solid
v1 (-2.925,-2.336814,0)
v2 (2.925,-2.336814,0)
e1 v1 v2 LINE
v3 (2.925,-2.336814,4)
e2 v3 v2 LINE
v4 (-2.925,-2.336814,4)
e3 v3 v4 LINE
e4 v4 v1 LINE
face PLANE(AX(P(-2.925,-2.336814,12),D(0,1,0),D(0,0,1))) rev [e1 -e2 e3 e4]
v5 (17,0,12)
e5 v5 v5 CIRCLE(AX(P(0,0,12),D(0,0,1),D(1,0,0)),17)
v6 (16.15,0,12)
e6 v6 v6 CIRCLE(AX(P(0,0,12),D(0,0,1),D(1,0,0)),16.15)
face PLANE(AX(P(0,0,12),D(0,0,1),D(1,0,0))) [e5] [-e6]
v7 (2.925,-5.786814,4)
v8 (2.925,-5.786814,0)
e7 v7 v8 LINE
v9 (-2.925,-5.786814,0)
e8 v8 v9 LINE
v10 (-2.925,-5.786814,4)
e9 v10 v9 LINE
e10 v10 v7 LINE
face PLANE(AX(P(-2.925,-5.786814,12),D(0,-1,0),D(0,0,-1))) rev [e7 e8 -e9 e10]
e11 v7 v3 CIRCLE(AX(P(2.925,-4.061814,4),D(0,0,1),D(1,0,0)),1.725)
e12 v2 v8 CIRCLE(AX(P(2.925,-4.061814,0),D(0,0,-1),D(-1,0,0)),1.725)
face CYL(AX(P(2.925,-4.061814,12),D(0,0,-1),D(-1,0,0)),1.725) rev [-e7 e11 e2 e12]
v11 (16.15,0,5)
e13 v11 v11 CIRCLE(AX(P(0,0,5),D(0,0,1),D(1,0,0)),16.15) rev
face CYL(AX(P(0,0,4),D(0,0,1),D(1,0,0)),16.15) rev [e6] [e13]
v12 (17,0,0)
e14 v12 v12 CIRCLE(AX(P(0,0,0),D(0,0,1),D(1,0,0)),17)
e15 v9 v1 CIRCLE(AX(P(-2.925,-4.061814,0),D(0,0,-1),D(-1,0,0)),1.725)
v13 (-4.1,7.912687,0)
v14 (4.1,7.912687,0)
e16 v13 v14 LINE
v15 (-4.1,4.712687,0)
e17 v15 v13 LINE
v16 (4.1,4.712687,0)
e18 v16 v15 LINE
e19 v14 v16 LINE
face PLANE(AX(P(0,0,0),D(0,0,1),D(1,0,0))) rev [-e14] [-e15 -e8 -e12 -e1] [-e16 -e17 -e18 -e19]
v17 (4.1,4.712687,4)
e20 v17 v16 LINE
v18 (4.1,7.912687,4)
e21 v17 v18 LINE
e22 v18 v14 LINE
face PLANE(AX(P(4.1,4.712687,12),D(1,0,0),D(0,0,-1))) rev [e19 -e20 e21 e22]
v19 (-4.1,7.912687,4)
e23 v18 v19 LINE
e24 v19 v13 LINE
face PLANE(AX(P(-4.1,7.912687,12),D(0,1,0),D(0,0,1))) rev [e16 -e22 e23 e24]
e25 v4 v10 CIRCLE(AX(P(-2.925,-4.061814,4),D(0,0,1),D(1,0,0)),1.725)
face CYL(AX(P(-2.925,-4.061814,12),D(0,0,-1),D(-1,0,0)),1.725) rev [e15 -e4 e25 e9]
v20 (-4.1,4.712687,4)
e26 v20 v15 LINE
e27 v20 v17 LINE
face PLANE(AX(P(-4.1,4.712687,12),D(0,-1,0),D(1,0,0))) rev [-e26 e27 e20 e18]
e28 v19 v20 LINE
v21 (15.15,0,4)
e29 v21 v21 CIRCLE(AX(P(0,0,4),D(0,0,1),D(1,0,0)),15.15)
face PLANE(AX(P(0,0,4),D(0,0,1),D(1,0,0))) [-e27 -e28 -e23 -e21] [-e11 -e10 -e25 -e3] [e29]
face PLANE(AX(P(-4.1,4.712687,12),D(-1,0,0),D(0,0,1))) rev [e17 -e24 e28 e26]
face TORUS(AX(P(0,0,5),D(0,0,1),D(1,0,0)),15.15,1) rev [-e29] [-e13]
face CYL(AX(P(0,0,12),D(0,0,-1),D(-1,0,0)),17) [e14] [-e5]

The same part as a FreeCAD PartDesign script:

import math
import FreeCAD as App
import Part
import Sketcher

V = App.Vector
Q = App.Units.Quantity


def edges_at(feature, points):
    """Names of the edges that pass closest to the given points."""
    edges = feature.Shape.Edges
    near = lambda p: min(range(len(edges)), key=lambda i: edges[i].distToShape(Part.Vertex(*p))[0])
    return sorted({f"Edge{near(p) + 1}" for p in points})

doc = App.newDocument("Part")
body = doc.addObject("PartDesign::Body", "Body")

# Sketch on XY plane
sketch1 = body.newObject("Sketcher::SketchObject", "Sketch")
sketch1.AttachmentSupport = (doc.getObject("XY_Plane"), [""])
sketch1.MapMode = "FlatFace"
sketch1.addGeometry(Part.Circle(V(0, 0, 0), V(0, 0, 1), 17), False)
sketch1.addConstraint(Sketcher.Constraint("Coincident", 0, 3, -1, 1))
sketch1.addConstraint(Sketcher.Constraint("Diameter", 0, Q("34 mm")))
pad1 = body.newObject("PartDesign::Pad", "Pad")
pad1.Profile = sketch1
pad1.Length = 12

# Sketch on XY plane
sketch2 = body.newObject("Sketcher::SketchObject", "Sketch001")
sketch2.AttachmentSupport = (doc.getObject("XY_Plane"), [""])
sketch2.MapMode = "FlatFace"
sketch2.AttachmentOffset = App.Placement(V(0, 0, 12), App.Rotation())
sketch2.addGeometry(Part.Circle(V(0, 0, 0), V(0, 0, 1), 16.15), False)
sketch2.addConstraint(Sketcher.Constraint("Coincident", 0, 3, -1, 1))
sketch2.addConstraint(Sketcher.Constraint("Diameter", 0, Q("32.3 mm")))
pocket1 = body.newObject("PartDesign::Pocket", "Pocket")
pocket1.Profile = sketch2
pocket1.Length = 8
doc.recompute()

fillet = body.newObject("PartDesign::Fillet", "Fillet")
fillet.Base = (pocket1, edges_at(pocket1, [(-16.15, 0, 4)]))
fillet.Radius = 1

# Sketch on XY plane
sketch3 = body.newObject("Sketcher::SketchObject", "Sketch002")
sketch3.AttachmentSupport = (doc.getObject("XY_Plane"), [""])
sketch3.MapMode = "FlatFace"
sketch3.addGeometry(Part.LineSegment(V(4.1, 7.912687, 0), V(4.1, 4.712687, 0)), False)
sketch3.addGeometry(Part.LineSegment(V(4.1, 4.712687, 0), V(-4.1, 4.712687, 0)), False)
sketch3.addGeometry(Part.LineSegment(V(-4.1, 4.712687, 0), V(-4.1, 7.912687, 0)), False)
sketch3.addGeometry(Part.LineSegment(V(-4.1, 7.912687, 0), V(4.1, 7.912687, 0)), False)
sketch3.addGeometry(Part.LineSegment(V(2.925, -5.786814, 0), V(-2.925, -5.786814, 0)), False)
sketch3.addGeometry(Part.ArcOfCircle(Part.Circle(V(-2.925, -4.061814, 0), V(0, 0, 1), 1.725), math.radians(90), math.radians(270)), False)
sketch3.addGeometry(Part.LineSegment(V(-2.925, -2.336814, 0), V(2.925, -2.336814, 0)), False)
sketch3.addGeometry(Part.ArcOfCircle(Part.Circle(V(2.925, -4.061814, 0), V(0, 0, 1), 1.725), math.radians(-90), math.radians(90)), False)
sketch3.addConstraint(Sketcher.Constraint("Coincident", 0, 2, 1, 1))
sketch3.addConstraint(Sketcher.Constraint("Coincident", 1, 2, 2, 1))
sketch3.addConstraint(Sketcher.Constraint("Coincident", 2, 2, 3, 1))
sketch3.addConstraint(Sketcher.Constraint("Coincident", 3, 2, 0, 1))
sketch3.addConstraint(Sketcher.Constraint("Tangent", 4, 2, 5, 2))
sketch3.addConstraint(Sketcher.Constraint("Tangent", 5, 1, 6, 1))
sketch3.addConstraint(Sketcher.Constraint("Tangent", 6, 2, 7, 2))
sketch3.addConstraint(Sketcher.Constraint("Tangent", 7, 1, 4, 1))
sketch3.addConstraint(Sketcher.Constraint("Vertical", 0))
sketch3.addConstraint(Sketcher.Constraint("Horizontal", 1))
sketch3.addConstraint(Sketcher.Constraint("Vertical", 2))
sketch3.addConstraint(Sketcher.Constraint("Horizontal", 3))
sketch3.addConstraint(Sketcher.Constraint("Horizontal", 4))
sketch3.addConstraint(Sketcher.Constraint("Horizontal", 6))
sketch3.addConstraint(Sketcher.Constraint("DistanceX", 1, 2, 1, 1, Q("8.2 mm")))
sketch3.addConstraint(Sketcher.Constraint("DistanceY", 0, 2, 0, 1, Q("3.2 mm")))
sketch3.addConstraint(Sketcher.Constraint("Radius", 5, Q("1.725 mm")))
sketch3.addConstraint(Sketcher.Constraint("DistanceX", 4, 2, 4, 1, Q("5.85 mm")))
sketch3.addConstraint(Sketcher.Constraint("DistanceX", -1, 1, 0, 2, Q("4.1 mm")))
sketch3.addConstraint(Sketcher.Constraint("DistanceX", 5, 3, -1, 1, Q("2.925 mm")))
sketch3.addConstraint(Sketcher.Constraint("DistanceY", 7, 3, 0, 2, Q("8.774501 mm")))
sketch3.addConstraint(Sketcher.Constraint("DistanceY", 5, 3, -1, 1, Q("4.061814 mm")))
pocket2 = body.newObject("PartDesign::Pocket", "Pocket001")
pocket2.Profile = sketch3
pocket2.Type = "ThroughAll"
pocket2.Reversed = True

doc.recompute()
